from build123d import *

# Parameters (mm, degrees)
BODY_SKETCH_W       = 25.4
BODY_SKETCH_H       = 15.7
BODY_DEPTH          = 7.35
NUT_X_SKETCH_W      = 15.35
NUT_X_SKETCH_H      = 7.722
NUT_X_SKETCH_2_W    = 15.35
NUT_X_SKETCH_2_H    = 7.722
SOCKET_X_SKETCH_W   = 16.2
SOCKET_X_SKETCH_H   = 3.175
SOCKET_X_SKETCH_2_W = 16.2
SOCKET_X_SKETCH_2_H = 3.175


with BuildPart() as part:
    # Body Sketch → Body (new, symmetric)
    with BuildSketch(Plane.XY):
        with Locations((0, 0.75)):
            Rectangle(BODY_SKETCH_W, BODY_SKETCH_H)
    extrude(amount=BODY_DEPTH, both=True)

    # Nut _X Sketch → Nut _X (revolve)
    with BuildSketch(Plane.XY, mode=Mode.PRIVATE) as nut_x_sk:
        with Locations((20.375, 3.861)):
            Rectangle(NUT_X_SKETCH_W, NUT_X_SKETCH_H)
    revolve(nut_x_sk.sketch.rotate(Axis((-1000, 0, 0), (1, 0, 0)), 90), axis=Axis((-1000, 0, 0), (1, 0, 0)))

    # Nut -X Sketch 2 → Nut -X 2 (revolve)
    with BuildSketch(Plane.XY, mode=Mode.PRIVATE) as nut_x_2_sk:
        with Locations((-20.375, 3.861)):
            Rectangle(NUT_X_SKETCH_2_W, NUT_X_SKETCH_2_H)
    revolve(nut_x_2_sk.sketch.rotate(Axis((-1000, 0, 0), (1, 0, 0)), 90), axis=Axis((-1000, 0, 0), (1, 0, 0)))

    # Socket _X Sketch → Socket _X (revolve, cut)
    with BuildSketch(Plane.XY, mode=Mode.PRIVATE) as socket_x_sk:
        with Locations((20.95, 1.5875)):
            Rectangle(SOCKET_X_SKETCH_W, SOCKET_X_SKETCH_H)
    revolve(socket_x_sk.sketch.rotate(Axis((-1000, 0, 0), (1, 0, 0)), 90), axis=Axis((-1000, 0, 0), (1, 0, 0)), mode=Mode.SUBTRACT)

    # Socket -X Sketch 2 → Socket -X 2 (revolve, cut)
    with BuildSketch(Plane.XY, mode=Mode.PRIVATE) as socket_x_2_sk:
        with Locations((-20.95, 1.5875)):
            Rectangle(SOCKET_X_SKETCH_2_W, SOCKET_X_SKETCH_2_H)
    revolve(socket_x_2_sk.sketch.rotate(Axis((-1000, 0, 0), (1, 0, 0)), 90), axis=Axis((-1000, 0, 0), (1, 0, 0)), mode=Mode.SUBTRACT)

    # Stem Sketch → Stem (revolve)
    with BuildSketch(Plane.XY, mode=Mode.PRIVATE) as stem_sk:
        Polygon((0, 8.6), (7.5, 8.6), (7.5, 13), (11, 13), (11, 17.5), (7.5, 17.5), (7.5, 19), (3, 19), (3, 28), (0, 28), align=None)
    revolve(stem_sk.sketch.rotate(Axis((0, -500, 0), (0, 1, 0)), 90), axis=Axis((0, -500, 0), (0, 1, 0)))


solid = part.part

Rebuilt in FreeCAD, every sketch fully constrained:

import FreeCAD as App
import Part
import Sketcher
Q = App.Units.Quantity


def add_polygon(sketch, points):
    """Adds a closed chain of lines whose ends are joined by coincident constraints."""
    first, n = sketch.GeometryCount, len(points)
    for a, b in zip(points, points[1:] + points[:1]):
        sketch.addGeometry(Part.LineSegment(App.Vector(*a, 0), App.Vector(*b, 0)), False)
    for i in range(n):
        sketch.addConstraint(Sketcher.Constraint("Coincident", first + i, 2, first + (i + 1) % n, 1))

doc = App.newDocument("Part")
params = doc.addObject("Spreadsheet::Sheet", "Params")
for row, (alias, value) in enumerate([
    ("sketch1_width", "25.4 mm"),
    ("sketch1_height", "15.7 mm"),
    ("pad1_length", "14.7 mm"),
    ("sketch2_width", "15.35 mm"),
    ("revolution_angle", "360 deg"),
    ("sketch3_width", "15.35 mm"),
    ("revolution2_angle", "360 deg"),
    ("sketch4_width", "16.2 mm"),
    ("groove_angle", "360 deg"),
    ("sketch5_width", "16.2 mm"),
    ("groove2_angle", "360 deg"),
    ("sketch6_width", "3 mm"),
    ("sketch6_height", "9 mm"),
    ("sketch6_width2", "7.5 mm"),
    ("sketch6_width3", "3.5 mm"),
    ("sketch6_height2", "4.4 mm"),
    ("revolution3_angle", "360 deg"),
], start=1):
    params.set(f"A{row}", alias)
    params.set(f"B{row}", "=" + value)
    params.setAlias(f"B{row}", alias)

body = doc.addObject("PartDesign::Body", "Body")

sketch1 = body.newObject("Sketcher::SketchObject", "Sketch")
sketch1.AttachmentSupport = (doc.getObject("XY_Plane"), [""])
sketch1.MapMode = "FlatFace"
add_polygon(sketch1, [(-13, 9), (-13, -7), (13, -7), (13, 9)])
sketch1.addConstraint([
    Sketcher.Constraint("Vertical", 0),
    Sketcher.Constraint("Horizontal", 1),
    Sketcher.Constraint("Vertical", 2),
    Sketcher.Constraint("Horizontal", 3),
    Sketcher.Constraint("DistanceX", 1, 1, 1, 2, Q("25.4 mm")),
    Sketcher.Constraint("DistanceY", 0, 2, 0, 1, Q("15.7 mm")),
    Sketcher.Constraint("DistanceX", 0, 2, -1, 1, Q("12.7 mm")),
    Sketcher.Constraint("DistanceY", 0, 2, -1, 1, Q("7.1 mm")),
])
sketch1.setExpression("Constraints[8]", "Params.sketch1_width")
sketch1.setExpression("Constraints[9]", "Params.sketch1_height")
pad1 = body.newObject("PartDesign::Pad", "Pad")
pad1.Profile = sketch1
pad1.setExpression("Length", "Params.pad1_length")
pad1.Midplane = True

sketch2 = body.newObject("Sketcher::SketchObject", "Sketch001")
sketch2.AttachmentSupport = (doc.getObject("XY_Plane"), [""])
sketch2.MapMode = "FlatFace"
add_polygon(sketch2, [(13, 8), (13, 0), (28, 0), (28, 8)])
sketch2.addConstraint([
    Sketcher.Constraint("Vertical", 0),
    Sketcher.Constraint("Horizontal", 1),
    Sketcher.Constraint("Vertical", 2),
    Sketcher.Constraint("Horizontal", 3),
    Sketcher.Constraint("PointOnObject", 0, 2, -1),
    Sketcher.Constraint("DistanceX", 1, 1, 1, 2, Q("15.35 mm")),
    Sketcher.Constraint("DistanceX", -1, 1, 0, 2, Q("12.7 mm")),
    Sketcher.Constraint("DistanceY", 0, 2, 0, 1, Q("7.722 mm")),
])
sketch2.setExpression("Constraints[9]", "Params.sketch2_width")
revolution = body.newObject("PartDesign::Revolution", "Revolution")
revolution.Profile = sketch2
revolution.ReferenceAxis = (sketch2, ["H_Axis"])
revolution.setExpression("Angle", "Params.revolution_angle")

sketch3 = body.newObject("Sketcher::SketchObject", "Sketch002")
sketch3.AttachmentSupport = (doc.getObject("XY_Plane"), [""])
sketch3.MapMode = "FlatFace"
add_polygon(sketch3, [(-28, 8), (-28, 0), (-13, 0), (-13, 8)])
sketch3.addConstraint([
    Sketcher.Constraint("Vertical", 0),
    Sketcher.Constraint("Horizontal", 1),
    Sketcher.Constraint("Vertical", 2),
    Sketcher.Constraint("Horizontal", 3),
    Sketcher.Constraint("PointOnObject", 0, 2, -1),
    Sketcher.Constraint("DistanceX", 1, 1, 1, 2, Q("15.35 mm")),
    Sketcher.Constraint("DistanceX", 1, 2, -1, 1, Q("12.7 mm")),
    Sketcher.Constraint("DistanceY", 0, 2, 0, 1, Q("7.722 mm")),
])
sketch3.setExpression("Constraints[9]", "Params.sketch3_width")
revolution2 = body.newObject("PartDesign::Revolution", "Revolution001")
revolution2.Profile = sketch3
revolution2.ReferenceAxis = (sketch3, ["H_Axis"])
revolution2.setExpression("Angle", "Params.revolution2_angle")

sketch4 = body.newObject("Sketcher::SketchObject", "Sketch003")
sketch4.AttachmentSupport = (doc.getObject("XY_Plane"), [""])
sketch4.MapMode = "FlatFace"
add_polygon(sketch4, [(12.8, 3.2), (12.8, 0), (29.1, 0), (29.1, 3.2)])
sketch4.addConstraint([
    Sketcher.Constraint("Vertical", 0),
    Sketcher.Constraint("Horizontal", 1),
    Sketcher.Constraint("Vertical", 2),
    Sketcher.Constraint("Horizontal", 3),
    Sketcher.Constraint("PointOnObject", 0, 2, -1),
    Sketcher.Constraint("DistanceX", 1, 1, 1, 2, Q("16.2 mm")),
    Sketcher.Constraint("DistanceY", 0, 2, 0, 1, Q("3.175 mm")),
    Sketcher.Constraint("DistanceX", -1, 1, 0, 2, Q("12.85 mm")),
])
sketch4.setExpression("Constraints[9]", "Params.sketch4_width")
groove = body.newObject("PartDesign::Groove", "Groove")
groove.Profile = sketch4
groove.ReferenceAxis = (sketch4, ["H_Axis"])
groove.setExpression("Angle", "Params.groove_angle")

sketch5 = body.newObject("Sketcher::SketchObject", "Sketch004")
sketch5.AttachmentSupport = (doc.getObject("XY_Plane"), [""])
sketch5.MapMode = "FlatFace"
add_polygon(sketch5, [(-29.1, 3.2), (-29.1, 0), (-12.8, 0), (-12.8, 3.2)])
sketch5.addConstraint([
    Sketcher.Constraint("Vertical", 0),
    Sketcher.Constraint("Horizontal", 1),
    Sketcher.Constraint("Vertical", 2),
    Sketcher.Constraint("Horizontal", 3),
    Sketcher.Constraint("PointOnObject", 0, 2, -1),
    Sketcher.Constraint("DistanceX", 1, 1, 1, 2, Q("16.2 mm")),
    Sketcher.Constraint("DistanceY", 0, 2, 0, 1, Q("3.175 mm")),
    Sketcher.Constraint("DistanceX", 0, 2, -1, 1, Q("29.05 mm")),
])
sketch5.setExpression("Constraints[9]", "Params.sketch5_width")
groove2 = body.newObject("PartDesign::Groove", "Groove001")
groove2.Profile = sketch5
groove2.ReferenceAxis = (sketch5, ["H_Axis"])
groove2.setExpression("Angle", "Params.groove2_angle")

sketch6 = body.newObject("Sketcher::SketchObject", "Sketch005")
sketch6.AttachmentSupport = (doc.getObject("XY_Plane"), [""])
sketch6.MapMode = "FlatFace"
add_polygon(sketch6, [(0, 8.6), (7.5, 8.6), (7.5, 13), (11, 13), (11, 17.5), (7.5, 17.5), (7.5, 19), (3, 19), (3, 28), (0, 28)])
sketch6.addConstraint([
    Sketcher.Constraint("Horizontal", 0),
    Sketcher.Constraint("Vertical", 1),
    Sketcher.Constraint("Horizontal", 2),
    Sketcher.Constraint("Vertical", 3),
    Sketcher.Constraint("Horizontal", 4),
    Sketcher.Constraint("Vertical", 5),
    Sketcher.Constraint("Horizontal", 6),
    Sketcher.Constraint("Vertical", 7),
    Sketcher.Constraint("Horizontal", 8),
    Sketcher.Constraint("Vertical", 9),
    Sketcher.Constraint("PointOnObject", 8, 2, -2),
    Sketcher.Constraint("Vertical", 1, 2, 4, 2),
    Sketcher.Constraint("Equal", 6, 3),
    Sketcher.Constraint("DistanceX", 8, 2, 8, 1, Q("3 mm")),
    Sketcher.Constraint("DistanceY", 7, 1, 7, 2, Q("9 mm")),
    Sketcher.Constraint("DistanceX", 0, 1, 0, 2, Q("7.5 mm")),
    Sketcher.Constraint("DistanceX", 2, 1, 2, 2, Q("3.5 mm")),
    Sketcher.Constraint("DistanceY", 1, 1, 1, 2, Q("4.4 mm")),
    Sketcher.Constraint("DistanceY", 5, 1, 5, 2, Q("1.5 mm")),
    Sketcher.Constraint("DistanceY", -1, 1, 1, 2, Q("13 mm")),
])
sketch6.setExpression("Constraints[23]", "Params.sketch6_width")
sketch6.setExpression("Constraints[24]", "Params.sketch6_height")
sketch6.setExpression("Constraints[25]", "Params.sketch6_width2")
sketch6.setExpression("Constraints[26]", "Params.sketch6_width3")
sketch6.setExpression("Constraints[27]", "Params.sketch6_height2")
revolution3 = body.newObject("PartDesign::Revolution", "Revolution002")
revolution3.Profile = sketch6
revolution3.ReferenceAxis = (sketch6, ["V_Axis"])
revolution3.setExpression("Angle", "Params.revolution3_angle")

doc.recompute()
